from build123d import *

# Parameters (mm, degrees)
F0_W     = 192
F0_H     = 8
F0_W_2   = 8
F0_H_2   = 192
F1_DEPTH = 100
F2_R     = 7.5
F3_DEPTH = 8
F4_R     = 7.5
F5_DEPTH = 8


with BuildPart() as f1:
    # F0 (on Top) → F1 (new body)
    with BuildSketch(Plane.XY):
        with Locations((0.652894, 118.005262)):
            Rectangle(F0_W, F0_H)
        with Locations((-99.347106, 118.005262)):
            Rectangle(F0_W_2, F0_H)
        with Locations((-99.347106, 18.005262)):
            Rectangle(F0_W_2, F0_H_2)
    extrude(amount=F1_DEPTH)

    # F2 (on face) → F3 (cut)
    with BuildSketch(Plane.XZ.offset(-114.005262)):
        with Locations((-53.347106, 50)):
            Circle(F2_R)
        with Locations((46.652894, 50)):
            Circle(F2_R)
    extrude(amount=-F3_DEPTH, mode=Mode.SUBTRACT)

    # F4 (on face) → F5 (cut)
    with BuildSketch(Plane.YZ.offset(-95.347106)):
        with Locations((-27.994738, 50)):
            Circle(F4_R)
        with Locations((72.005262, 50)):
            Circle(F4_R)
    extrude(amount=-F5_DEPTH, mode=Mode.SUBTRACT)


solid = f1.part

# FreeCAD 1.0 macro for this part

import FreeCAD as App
import Part
import Sketcher

V = App.Vector

doc = App.newDocument("Part")
body = doc.addObject("PartDesign::Body", "Body")

# Sketch on XY plane
sketch1 = body.newObject("Sketcher::SketchObject", "Sketch")
sketch1.AttachmentSupport = (doc.getObject("XY_Plane"), [""])
sketch1.MapMode = "FlatFace"
sketch1.addGeometry(Part.LineSegment(V(97, 114, 0), V(97, 122, 0)), False)
sketch1.addGeometry(Part.LineSegment(V(97, 122, 0), V(-103, 122, 0)), False)
sketch1.addGeometry(Part.LineSegment(V(-103, 122, 0), V(-103, -78, 0)), False)
sketch1.addGeometry(Part.LineSegment(V(-103, -78, 0), V(-95, -78, 0)), False)
sketch1.addGeometry(Part.LineSegment(V(-95, -78, 0), V(-95, 114, 0)), False)
sketch1.addGeometry(Part.LineSegment(V(-95, 114, 0), V(97, 114, 0)), False)
sketch1.addConstraint(Sketcher.Constraint("Coincident", 0, 2, 1, 1))
sketch1.addConstraint(Sketcher.Constraint("Coincident", 1, 2, 2, 1))
sketch1.addConstraint(Sketcher.Constraint("Coincident", 2, 2, 3, 1))
sketch1.addConstraint(Sketcher.Constraint("Coincident", 3, 2, 4, 1))
sketch1.addConstraint(Sketcher.Constraint("Coincident", 4, 2, 5, 1))
sketch1.addConstraint(Sketcher.Constraint("Coincident", 5, 2, 0, 1))
sketch1.addConstraint(Sketcher.Constraint("Vertical", 0))
sketch1.addConstraint(Sketcher.Constraint("Horizontal", 1))
sketch1.addConstraint(Sketcher.Constraint("Vertical", 2))
sketch1.addConstraint(Sketcher.Constraint("Horizontal", 3))
sketch1.addConstraint(Sketcher.Constraint("Vertical", 4))
sketch1.addConstraint(Sketcher.Constraint("Horizontal", 5))
sketch1.addConstraint(Sketcher.Constraint("Equal", 3, 0))
sketch1.addConstraint(Sketcher.Constraint("Equal", 1, 2))
sketch1.addConstraint(Sketcher.Constraint("DistanceX", 1, 2, 1, 1, 200.0))
sketch1.addConstraint(Sketcher.Constraint("DistanceX", 3, 1, 3, 2, 8.0))
sketch1.addConstraint(Sketcher.Constraint("DistanceY", -1, 1, 0, 2, 122.005262))
sketch1.addConstraint(Sketcher.Constraint("DistanceX", -1, 1, 0, 2, 96.652894))
pad1 = body.newObject("PartDesign::Pad", "Pad")
pad1.Profile = sketch1
pad1.Length = 100

# Sketch on XZ plane
sketch2 = body.newObject("Sketcher::SketchObject", "Sketch001")
sketch2.AttachmentSupport = (doc.getObject("XZ_Plane"), [""])
sketch2.MapMode = "FlatFace"
sketch2.AttachmentOffset = App.Placement(V(0, 0, -114.005262), App.Rotation())
sketch2.addGeometry(Part.Circle(V(-53, 50, 0), V(0, 0, 1), 8), False)
sketch2.addGeometry(Part.Circle(V(47, 50, 0), V(0, 0, 1), 8), False)
sketch2.addConstraint(Sketcher.Constraint("Equal", 0, 1))
sketch2.addConstraint(Sketcher.Constraint("Horizontal", 0, 3, 1, 3))
sketch2.addConstraint(Sketcher.Constraint("Diameter", 0, 15.0))
sketch2.addConstraint(Sketcher.Constraint("DistanceY", -1, 1, 0, 3, 50.0))
sketch2.addConstraint(Sketcher.Constraint("DistanceX", 0, 3, 1, 3, 100.0))
sketch2.addConstraint(Sketcher.Constraint("DistanceX", 0, 3, -1, 1, 53.347106))
pocket1 = body.newObject("PartDesign::Pocket", "Pocket")
pocket1.Profile = sketch2
pocket1.Length = 8

# Sketch on YZ plane
sketch3 = body.newObject("Sketcher::SketchObject", "Sketch002")
sketch3.AttachmentSupport = (doc.getObject("YZ_Plane"), [""])
sketch3.MapMode = "FlatFace"
sketch3.AttachmentOffset = App.Placement(V(0, 0, -95.347106), App.Rotation())
sketch3.addGeometry(Part.Circle(V(-28, 50, 0), V(0, 0, 1), 8), False)
sketch3.addGeometry(Part.Circle(V(72, 50, 0), V(0, 0, 1), 8), False)
sketch3.addConstraint(Sketcher.Constraint("Equal", 0, 1))
sketch3.addConstraint(Sketcher.Constraint("Horizontal", 0, 3, 1, 3))
sketch3.addConstraint(Sketcher.Constraint("Diameter", 0, 15.0))
sketch3.addConstraint(Sketcher.Constraint("DistanceY", -1, 1, 0, 3, 50.0))
sketch3.addConstraint(Sketcher.Constraint("DistanceX", 0, 3, 1, 3, 100.0))
sketch3.addConstraint(Sketcher.Constraint("DistanceX", 0, 3, -1, 1, 27.994738))
pocket2 = body.newObject("PartDesign::Pocket", "Pocket001")
pocket2.Profile = sketch3
pocket2.Length = 8

doc.recompute()
